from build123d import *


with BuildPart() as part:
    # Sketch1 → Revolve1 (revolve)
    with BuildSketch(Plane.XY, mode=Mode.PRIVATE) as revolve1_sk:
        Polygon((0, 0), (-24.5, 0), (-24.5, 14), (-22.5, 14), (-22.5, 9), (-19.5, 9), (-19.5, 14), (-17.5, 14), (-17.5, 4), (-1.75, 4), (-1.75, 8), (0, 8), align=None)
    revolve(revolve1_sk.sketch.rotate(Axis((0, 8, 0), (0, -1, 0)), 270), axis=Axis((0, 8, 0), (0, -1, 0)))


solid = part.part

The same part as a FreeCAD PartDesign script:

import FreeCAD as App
import Part
import Sketcher


def add_polygon(sketch, points):
    """Adds a closed chain of lines whose ends are joined by coincident constraints."""
    first, n = sketch.GeometryCount, len(points)
    for a, b in zip(points, points[1:] + points[:1]):
        sketch.addGeometry(Part.LineSegment(App.Vector(*a, 0), App.Vector(*b, 0)), False)
    for i in range(n):
        sketch.addConstraint(Sketcher.Constraint("Coincident", first + i, 2, first + (i + 1) % n, 1))

doc = App.newDocument("Part")
params = doc.addObject("Spreadsheet::Sheet", "Params")
for row, (alias, value) in enumerate([
    ("sketch1_width", "2 mm"),
    ("sketch1_width2", "3 mm"),
    ("sketch1_height", "8 mm"),
    ("sketch1_height2", "4 mm"),
    ("sketch1_height3", "10 mm"),
    ("revolution_angle", "360 deg"),
], start=1):
    params.set(f"A{row}", alias)
    params.set(f"B{row}", "=" + value)
    params.setAlias(f"B{row}", alias)

body = doc.addObject("PartDesign::Body", "Body")

sketch1 = doc.addObject("Sketcher::SketchObject", "Sketch")
body.addObject(sketch1)
sketch1.AttachmentSupport = (doc.XY_Plane, [""])
sketch1.MapMode = "FlatFace"
add_polygon(sketch1, [(-24.5, 0), (0, 0), (0, 8), (-1.75, 8), (-1.75, 4), (-17.5, 4), (-17.5, 14), (-19.5, 14), (-19.5, 9), (-22.5, 9), (-22.5, 14), (-24.5, 14)])
sketch1.addConstraint(Sketcher.Constraint("Horizontal", 0))
sketch1.addConstraint(Sketcher.Constraint("Vertical", 1))
sketch1.addConstraint(Sketcher.Constraint("Horizontal", 2))
sketch1.addConstraint(Sketcher.Constraint("Vertical", 3))
sketch1.addConstraint(Sketcher.Constraint("Horizontal", 4))
sketch1.addConstraint(Sketcher.Constraint("Vertical", 5))
sketch1.addConstraint(Sketcher.Constraint("Horizontal", 6))
sketch1.addConstraint(Sketcher.Constraint("Vertical", 7))
sketch1.addConstraint(Sketcher.Constraint("Horizontal", 8))
sketch1.addConstraint(Sketcher.Constraint("Vertical", 9))
sketch1.addConstraint(Sketcher.Constraint("Horizontal", 10))
sketch1.addConstraint(Sketcher.Constraint("Vertical", 11))
sketch1.addConstraint(Sketcher.Constraint("Coincident", 0, 2, -1, 1))
sketch1.addConstraint(Sketcher.Constraint("Horizontal", 6, 2, 9, 2))
sketch1.addConstraint(Sketcher.Constraint("Equal", 6, 10))
sketch1.addConstraint(Sketcher.Constraint("DistanceX", 6, 2, 6, 1, 2.0))
sketch1.addConstraint(Sketcher.Constraint("DistanceX", 8, 2, 8, 1, 3.0))
sketch1.addConstraint(Sketcher.Constraint("DistanceY", 1, 1, 1, 2, 8.0))
sketch1.addConstraint(Sketcher.Constraint("DistanceY", 3, 2, 3, 1, 4.0))
sketch1.addConstraint(Sketcher.Constraint("DistanceY", 5, 1, 5, 2, 10.0))
sketch1.addConstraint(Sketcher.Constraint("DistanceY", 7, 2, 7, 1, 5.0))
sketch1.addConstraint(Sketcher.Constraint("DistanceX", 0, 1, 0, 2, 24.5))
sketch1.addConstraint(Sketcher.Constraint("DistanceX", 2, 2, 2, 1, 1.75))
sketch1.setExpression("Constraints[27]", "Params.sketch1_width")
sketch1.setExpression("Constraints[28]", "Params.sketch1_width2")
sketch1.setExpression("Constraints[29]", "Params.sketch1_height")
sketch1.setExpression("Constraints[30]", "Params.sketch1_height2")
sketch1.setExpression("Constraints[31]", "Params.sketch1_height3")
revolution = doc.addObject("PartDesign::Revolution", "Revolution")
body.addObject(revolution)
revolution.Profile = sketch1
revolution.ReferenceAxis = (sketch1, ["V_Axis"])
revolution.setExpression("Angle", "Params.revolution_angle")

doc.recompute()
